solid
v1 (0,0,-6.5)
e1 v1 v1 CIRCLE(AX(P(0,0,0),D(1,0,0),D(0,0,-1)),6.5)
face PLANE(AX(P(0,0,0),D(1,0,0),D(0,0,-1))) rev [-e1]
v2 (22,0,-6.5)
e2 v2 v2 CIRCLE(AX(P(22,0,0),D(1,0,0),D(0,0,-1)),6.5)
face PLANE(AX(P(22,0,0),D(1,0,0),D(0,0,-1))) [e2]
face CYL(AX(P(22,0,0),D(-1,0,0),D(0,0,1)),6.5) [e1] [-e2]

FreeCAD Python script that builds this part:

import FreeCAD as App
import Part
import Sketcher

V = App.Vector
Q = App.Units.Quantity

doc = App.newDocument("Part")
params = doc.addObject("Spreadsheet::Sheet", "Params")
for row, (alias, value) in enumerate([
    ("sketch1_diameter", "13 mm"),
    ("pad1_length", "22 mm"),
], start=1):
    params.set(f"A{row}", alias)
    params.set(f"B{row}", "=" + value)
    params.setAlias(f"B{row}", alias)

body = doc.addObject("PartDesign::Body", "Body")

# Sketch on YZ plane
sketch1 = body.newObject("Sketcher::SketchObject", "Sketch")
sketch1.AttachmentSupport = (doc.getObject("YZ_Plane"), [""])
sketch1.MapMode = "FlatFace"
sketch1.addGeometry(Part.Circle(V(0, 0, 0), V(0, 0, 1), 6), False)
sketch1.addConstraint([
    Sketcher.Constraint("Coincident", 0, 3, -1, 1),
    Sketcher.Constraint("Diameter", 0, Q("13 mm")),
])
sketch1.setExpression("Constraints[1]", "Params.sketch1_diameter")
pad1 = body.newObject("PartDesign::Pad", "Pad")
pad1.Profile = sketch1
pad1.setExpression("Length", "Params.pad1_length")

doc.recompute()
